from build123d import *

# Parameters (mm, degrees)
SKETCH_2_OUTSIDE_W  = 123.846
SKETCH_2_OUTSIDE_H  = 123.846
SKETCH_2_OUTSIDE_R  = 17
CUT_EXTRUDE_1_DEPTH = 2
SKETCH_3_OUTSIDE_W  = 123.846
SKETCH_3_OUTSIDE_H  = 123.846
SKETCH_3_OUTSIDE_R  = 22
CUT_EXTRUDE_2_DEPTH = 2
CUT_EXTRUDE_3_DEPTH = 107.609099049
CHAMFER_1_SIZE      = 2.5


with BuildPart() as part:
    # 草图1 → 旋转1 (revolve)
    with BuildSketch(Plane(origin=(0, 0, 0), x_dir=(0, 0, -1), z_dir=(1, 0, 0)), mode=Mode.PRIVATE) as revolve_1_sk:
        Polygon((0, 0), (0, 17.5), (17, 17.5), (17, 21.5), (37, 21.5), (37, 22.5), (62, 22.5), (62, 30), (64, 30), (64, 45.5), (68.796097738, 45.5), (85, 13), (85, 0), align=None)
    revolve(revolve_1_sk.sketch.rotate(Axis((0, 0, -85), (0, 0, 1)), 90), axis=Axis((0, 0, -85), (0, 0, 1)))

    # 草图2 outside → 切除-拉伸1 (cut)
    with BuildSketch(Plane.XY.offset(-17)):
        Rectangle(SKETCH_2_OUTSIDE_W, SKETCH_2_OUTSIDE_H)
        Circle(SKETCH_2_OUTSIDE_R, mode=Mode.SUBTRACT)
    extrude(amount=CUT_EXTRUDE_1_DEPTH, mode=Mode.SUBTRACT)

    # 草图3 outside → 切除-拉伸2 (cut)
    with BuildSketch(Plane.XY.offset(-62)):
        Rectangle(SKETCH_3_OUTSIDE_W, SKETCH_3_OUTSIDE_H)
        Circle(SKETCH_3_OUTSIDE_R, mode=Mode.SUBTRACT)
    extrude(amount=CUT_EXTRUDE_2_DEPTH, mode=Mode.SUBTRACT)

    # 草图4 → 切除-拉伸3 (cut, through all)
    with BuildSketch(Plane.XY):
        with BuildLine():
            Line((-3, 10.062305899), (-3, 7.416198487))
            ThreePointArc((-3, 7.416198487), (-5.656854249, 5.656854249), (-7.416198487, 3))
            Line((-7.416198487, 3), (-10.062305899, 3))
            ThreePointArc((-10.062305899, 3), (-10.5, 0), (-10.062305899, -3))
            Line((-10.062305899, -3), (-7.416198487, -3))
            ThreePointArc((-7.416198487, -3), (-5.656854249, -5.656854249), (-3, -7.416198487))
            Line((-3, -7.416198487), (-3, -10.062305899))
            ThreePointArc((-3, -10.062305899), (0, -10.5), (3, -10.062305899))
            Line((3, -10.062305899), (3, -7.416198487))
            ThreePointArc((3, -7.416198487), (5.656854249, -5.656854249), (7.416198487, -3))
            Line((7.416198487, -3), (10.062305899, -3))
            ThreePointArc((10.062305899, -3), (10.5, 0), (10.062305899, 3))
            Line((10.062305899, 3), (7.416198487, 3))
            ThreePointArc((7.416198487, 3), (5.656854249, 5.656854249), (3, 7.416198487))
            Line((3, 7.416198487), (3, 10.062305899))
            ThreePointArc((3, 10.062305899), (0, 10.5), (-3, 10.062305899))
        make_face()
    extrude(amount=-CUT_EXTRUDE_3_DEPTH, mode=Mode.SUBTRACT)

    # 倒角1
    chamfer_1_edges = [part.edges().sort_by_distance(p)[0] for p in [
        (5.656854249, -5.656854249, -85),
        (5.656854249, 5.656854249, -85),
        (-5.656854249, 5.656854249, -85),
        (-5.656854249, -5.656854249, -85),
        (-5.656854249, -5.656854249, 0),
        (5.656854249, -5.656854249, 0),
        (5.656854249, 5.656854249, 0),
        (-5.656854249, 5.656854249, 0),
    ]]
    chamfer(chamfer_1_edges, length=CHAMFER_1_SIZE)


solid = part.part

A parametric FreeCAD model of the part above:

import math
import FreeCAD as App
import Part
import Sketcher

V = App.Vector
Q = App.Units.Quantity


def edges_at(feature, points):
    """Names of the edges that pass closest to the given points."""
    edges = feature.Shape.Edges
    near = lambda p: min(range(len(edges)), key=lambda i: edges[i].distToShape(Part.Vertex(*p))[0])
    return sorted({f"Edge{near(p) + 1}" for p in points})


def add_polygon(sketch, points):
    """Adds a closed chain of lines whose ends are joined by coincident constraints."""
    first, n = sketch.GeometryCount, len(points)
    for a, b in zip(points, points[1:] + points[:1]):
        sketch.addGeometry(Part.LineSegment(App.Vector(*a, 0), App.Vector(*b, 0)), False)
    for i in range(n):
        sketch.addConstraint(Sketcher.Constraint("Coincident", first + i, 2, first + (i + 1) % n, 1))

doc = App.newDocument("Part")
body = doc.addObject("PartDesign::Body", "Body")

# Sketch on YZ plane
sketch1 = body.newObject("Sketcher::SketchObject", "Sketch")
sketch1.AttachmentSupport = (doc.getObject("YZ_Plane"), [""])
sketch1.MapMode = "FlatFace"
add_polygon(sketch1, [(17.5, 0), (0, 0), (0, -85), (13, -85), (45.5, -68.796098), (45.5, -64), (30, -64), (30, -62), (22.5, -62), (22.5, -37), (21.5, -37), (21.5, -17), (17.5, -17)])  # lines 0-12
sketch1.addConstraint([
    Sketcher.Constraint("Horizontal", 0),
    Sketcher.Constraint("Vertical", 1),
    Sketcher.Constraint("Horizontal", 2),
    Sketcher.Constraint("Vertical", 4),
    Sketcher.Constraint("Horizontal", 5),
    Sketcher.Constraint("Vertical", 6),
    Sketcher.Constraint("Horizontal", 7),
    Sketcher.Constraint("Vertical", 8),
    Sketcher.Constraint("Horizontal", 9),
    Sketcher.Constraint("Vertical", 10),
    Sketcher.Constraint("Horizontal", 11),
    Sketcher.Constraint("Vertical", 12),
    Sketcher.Constraint("Coincident", 0, 2, -1, 1),
    Sketcher.Constraint("DistanceX", 2, 1, 2, 2, Q("13 mm")),
    Sketcher.Constraint("DistanceX", 9, 2, 9, 1, Q("1 mm")),
    Sketcher.Constraint("DistanceX", 11, 2, 11, 1, Q("4 mm")),
    Sketcher.Constraint("DistanceY", 1, 2, 1, 1, Q("85 mm")),
    Sketcher.Constraint("DistanceY", 6, 1, 6, 2, Q("2 mm")),
    Sketcher.Constraint("DistanceY", 8, 1, 8, 2, Q("25 mm")),
    Sketcher.Constraint("DistanceY", 10, 1, 10, 2, Q("20 mm")),
    Sketcher.Constraint("DistanceY", 12, 1, 12, 2, Q("17 mm")),
    Sketcher.Constraint("DistanceX", 0, 2, 0, 1, Q("17.5 mm")),
    Sketcher.Constraint("DistanceX", 5, 2, 5, 1, Q("15.5 mm")),
    Sketcher.Constraint("DistanceX", 7, 2, 7, 1, Q("7.5 mm")),
    Sketcher.Constraint("Angle", 3, Q("26.5 deg")),
])
revolution = body.newObject("PartDesign::Revolution", "Revolution")
revolution.Profile = sketch1
revolution.ReferenceAxis = (sketch1, ["V_Axis"])
revolution.Angle = 360

# Sketch on XY plane
sketch2 = body.newObject("Sketcher::SketchObject", "Sketch001")
sketch2.AttachmentSupport = (doc.getObject("XY_Plane"), [""])
sketch2.MapMode = "FlatFace"
sketch2.AttachmentOffset = App.Placement(V(0, 0, -17), App.Rotation())
add_polygon(sketch2, [(-61.923, 61.923), (-61.923, -61.923), (61.923, -61.923), (61.923, 61.923)])  # lines 0-3
sketch2.addGeometry(Part.Circle(V(0, 0, 0), V(0, 0, 1), 17), False)  # 4
sketch2.addConstraint([
    Sketcher.Constraint("Vertical", 0),
    Sketcher.Constraint("Horizontal", 1),
    Sketcher.Constraint("Vertical", 2),
    Sketcher.Constraint("Horizontal", 3),
    Sketcher.Constraint("Coincident", 4, 3, -1, 1),
    Sketcher.Constraint("Symmetric", 0, 2, 2, 2, -1, 1),
    Sketcher.Constraint("Equal", 3, 0),
    Sketcher.Constraint("Diameter", 4, Q("34 mm")),
    Sketcher.Constraint("DistanceX", 1, 1, 1, 2, Q("123.846 mm")),
])
pocket1 = body.newObject("PartDesign::Pocket", "Pocket")
pocket1.Profile = sketch2
pocket1.Length = 2
pocket1.Reversed = True

# Sketch on XY plane
sketch3 = body.newObject("Sketcher::SketchObject", "Sketch002")
sketch3.AttachmentSupport = (doc.getObject("XY_Plane"), [""])
sketch3.MapMode = "FlatFace"
sketch3.AttachmentOffset = App.Placement(V(0, 0, -62), App.Rotation())
add_polygon(sketch3, [(-61.923, 61.923), (-61.923, -61.923), (61.923, -61.923), (61.923, 61.923)])  # lines 0-3
sketch3.addGeometry(Part.Circle(V(0, 0, 0), V(0, 0, 1), 22), False)  # 4
sketch3.addConstraint([
    Sketcher.Constraint("Vertical", 0),
    Sketcher.Constraint("Horizontal", 1),
    Sketcher.Constraint("Vertical", 2),
    Sketcher.Constraint("Horizontal", 3),
    Sketcher.Constraint("Coincident", 4, 3, -1, 1),
    Sketcher.Constraint("Symmetric", 0, 2, 2, 2, -1, 1),
    Sketcher.Constraint("Equal", 3, 0),
    Sketcher.Constraint("Diameter", 4, Q("44 mm")),
    Sketcher.Constraint("DistanceX", 1, 1, 1, 2, Q("123.846 mm")),
])
pocket2 = body.newObject("PartDesign::Pocket", "Pocket001")
pocket2.Profile = sketch3
pocket2.Length = 2
pocket2.Reversed = True

# Sketch on XY plane
sketch4 = body.newObject("Sketcher::SketchObject", "Sketch003")
sketch4.AttachmentSupport = (doc.getObject("XY_Plane"), [""])
sketch4.MapMode = "FlatFace"
sketch4.addGeometry([
    Part.LineSegment(V(-3, 10.062306, 0), V(-3, 7.416198, 0)),  # 0
    Part.ArcOfCircle(Part.Circle(V(0, 0, 0), V(0, 0, 1), 8), math.radians(112.024313), math.radians(157.975687)),  # 1
    Part.LineSegment(V(-7.416198, 3, 0), V(-10.062306, 3, 0)),  # 2
    Part.ArcOfCircle(Part.Circle(V(0, 0, 0), V(0, 0, 1), 10.5), math.radians(163.39845), math.radians(196.60155)),  # 3
    Part.LineSegment(V(-10.062306, -3, 0), V(-7.416198, -3, 0)),  # 4
    Part.ArcOfCircle(Part.Circle(V(0, 0, 0), V(0, 0, 1), 8), math.radians(-157.975687), math.radians(-112.024313)),  # 5
    Part.LineSegment(V(-3, -7.416198, 0), V(-3, -10.062306, 0)),  # 6
    Part.ArcOfCircle(Part.Circle(V(0, 0, 0), V(0, 0, 1), 10.5), math.radians(-106.60155), math.radians(-73.39845)),  # 7
    Part.LineSegment(V(3, -10.062306, 0), V(3, -7.416198, 0)),  # 8
    Part.ArcOfCircle(Part.Circle(V(0, 0, 0), V(0, 0, 1), 8), math.radians(-67.975687), math.radians(-22.024313)),  # 9
    Part.LineSegment(V(7.416198, -3, 0), V(10.062306, -3, 0)),  # 10
    Part.ArcOfCircle(Part.Circle(V(0, 0, 0), V(0, 0, 1), 10.5), math.radians(-16.60155), math.radians(16.60155)),  # 11
    Part.LineSegment(V(10.062306, 3, 0), V(7.416198, 3, 0)),  # 12
    Part.ArcOfCircle(Part.Circle(V(0, 0, 0), V(0, 0, 1), 8), math.radians(22.024313), math.radians(67.975687)),  # 13
    Part.LineSegment(V(3, 7.416198, 0), V(3, 10.062306, 0)),  # 14
    Part.ArcOfCircle(Part.Circle(V(0, 0, 0), V(0, 0, 1), 10.5), math.radians(73.39845), math.radians(106.60155)),  # 15
], False)
sketch4.addConstraint([
    Sketcher.Constraint("Coincident", 0, 2, 1, 1),
    Sketcher.Constraint("Coincident", 1, 2, 2, 1),
    Sketcher.Constraint("Coincident", 2, 2, 3, 1),
    Sketcher.Constraint("Coincident", 3, 2, 4, 1),
    Sketcher.Constraint("Coincident", 4, 2, 5, 1),
    Sketcher.Constraint("Coincident", 5, 2, 6, 1),
    Sketcher.Constraint("Coincident", 6, 2, 7, 1),
    Sketcher.Constraint("Coincident", 7, 2, 8, 1),
    Sketcher.Constraint("Coincident", 8, 2, 9, 1),
    Sketcher.Constraint("Coincident", 9, 2, 10, 1),
    Sketcher.Constraint("Coincident", 10, 2, 11, 1),
    Sketcher.Constraint("Coincident", 11, 2, 12, 1),
    Sketcher.Constraint("Coincident", 12, 2, 13, 1),
    Sketcher.Constraint("Coincident", 13, 2, 14, 1),
    Sketcher.Constraint("Coincident", 14, 2, 15, 1),
    Sketcher.Constraint("Coincident", 15, 2, 0, 1),
    Sketcher.Constraint("Vertical", 0),
    Sketcher.Constraint("Horizontal", 2),
    Sketcher.Constraint("Horizontal", 4),
    Sketcher.Constraint("Vertical", 6),
    Sketcher.Constraint("Vertical", 8),
    Sketcher.Constraint("Horizontal", 10),
    Sketcher.Constraint("Horizontal", 12),
    Sketcher.Constraint("Vertical", 14),
    Sketcher.Constraint("Coincident", 1, 3, -1, 1),
    Sketcher.Constraint("Coincident", 3, 3, -1, 1),
    Sketcher.Constraint("Coincident", 5, 3, -1, 1),
    Sketcher.Constraint("Coincident", 7, 3, -1, 1),
    Sketcher.Constraint("Coincident", 9, 3, -1, 1),
    Sketcher.Constraint("Coincident", 11, 3, -1, 1),
    Sketcher.Constraint("Coincident", 13, 3, -1, 1),
    Sketcher.Constraint("Coincident", 15, 3, -1, 1),
    Sketcher.Constraint("Equal", 1, 5),
    Sketcher.Constraint("Equal", 3, 7),
    Sketcher.Constraint("Equal", 5, 9),
    Sketcher.Constraint("Equal", 7, 11),
    Sketcher.Constraint("Equal", 9, 13),
    Sketcher.Constraint("Equal", 11, 15),
    Sketcher.Constraint("Horizontal", 6, 2, 7, 2),
    Sketcher.Constraint("Horizontal", 4, 2, 9, 2),
    Sketcher.Constraint("Horizontal", 2, 2, 11, 2),
    Sketcher.Constraint("Horizontal", 0, 2, 13, 2),
    Sketcher.Constraint("Vertical", 2, 2, 3, 2),
    Sketcher.Constraint("Vertical", 0, 2, 5, 2),
    Sketcher.Constraint("Equal", 12, 0),
    Sketcher.Constraint("Radius", 1, Q("8 mm")),
    Sketcher.Constraint("Radius", 3, Q("10.5 mm")),
    Sketcher.Constraint("DistanceX", 0, 2, -1, 1, Q("3 mm")),
])
pocket3 = body.newObject("PartDesign::Pocket", "Pocket002")
pocket3.Profile = sketch4
pocket3.Type = "ThroughAll"
doc.recompute()

chamfer = body.newObject("PartDesign::Chamfer", "Chamfer")
chamfer.Base = (pocket3, edges_at(pocket3, [
    (5.657, -5.657, -85),
    (5.657, 5.657, -85),
    (-5.657, 5.657, -85),
    (-5.657, -5.657, -85),
    (-5.657, -5.657, 0),
    (5.657, -5.657, 0),
    (5.657, 5.657, 0),
    (-5.657, 5.657, 0),
]))
chamfer.Size = 2.5

doc.recompute()
